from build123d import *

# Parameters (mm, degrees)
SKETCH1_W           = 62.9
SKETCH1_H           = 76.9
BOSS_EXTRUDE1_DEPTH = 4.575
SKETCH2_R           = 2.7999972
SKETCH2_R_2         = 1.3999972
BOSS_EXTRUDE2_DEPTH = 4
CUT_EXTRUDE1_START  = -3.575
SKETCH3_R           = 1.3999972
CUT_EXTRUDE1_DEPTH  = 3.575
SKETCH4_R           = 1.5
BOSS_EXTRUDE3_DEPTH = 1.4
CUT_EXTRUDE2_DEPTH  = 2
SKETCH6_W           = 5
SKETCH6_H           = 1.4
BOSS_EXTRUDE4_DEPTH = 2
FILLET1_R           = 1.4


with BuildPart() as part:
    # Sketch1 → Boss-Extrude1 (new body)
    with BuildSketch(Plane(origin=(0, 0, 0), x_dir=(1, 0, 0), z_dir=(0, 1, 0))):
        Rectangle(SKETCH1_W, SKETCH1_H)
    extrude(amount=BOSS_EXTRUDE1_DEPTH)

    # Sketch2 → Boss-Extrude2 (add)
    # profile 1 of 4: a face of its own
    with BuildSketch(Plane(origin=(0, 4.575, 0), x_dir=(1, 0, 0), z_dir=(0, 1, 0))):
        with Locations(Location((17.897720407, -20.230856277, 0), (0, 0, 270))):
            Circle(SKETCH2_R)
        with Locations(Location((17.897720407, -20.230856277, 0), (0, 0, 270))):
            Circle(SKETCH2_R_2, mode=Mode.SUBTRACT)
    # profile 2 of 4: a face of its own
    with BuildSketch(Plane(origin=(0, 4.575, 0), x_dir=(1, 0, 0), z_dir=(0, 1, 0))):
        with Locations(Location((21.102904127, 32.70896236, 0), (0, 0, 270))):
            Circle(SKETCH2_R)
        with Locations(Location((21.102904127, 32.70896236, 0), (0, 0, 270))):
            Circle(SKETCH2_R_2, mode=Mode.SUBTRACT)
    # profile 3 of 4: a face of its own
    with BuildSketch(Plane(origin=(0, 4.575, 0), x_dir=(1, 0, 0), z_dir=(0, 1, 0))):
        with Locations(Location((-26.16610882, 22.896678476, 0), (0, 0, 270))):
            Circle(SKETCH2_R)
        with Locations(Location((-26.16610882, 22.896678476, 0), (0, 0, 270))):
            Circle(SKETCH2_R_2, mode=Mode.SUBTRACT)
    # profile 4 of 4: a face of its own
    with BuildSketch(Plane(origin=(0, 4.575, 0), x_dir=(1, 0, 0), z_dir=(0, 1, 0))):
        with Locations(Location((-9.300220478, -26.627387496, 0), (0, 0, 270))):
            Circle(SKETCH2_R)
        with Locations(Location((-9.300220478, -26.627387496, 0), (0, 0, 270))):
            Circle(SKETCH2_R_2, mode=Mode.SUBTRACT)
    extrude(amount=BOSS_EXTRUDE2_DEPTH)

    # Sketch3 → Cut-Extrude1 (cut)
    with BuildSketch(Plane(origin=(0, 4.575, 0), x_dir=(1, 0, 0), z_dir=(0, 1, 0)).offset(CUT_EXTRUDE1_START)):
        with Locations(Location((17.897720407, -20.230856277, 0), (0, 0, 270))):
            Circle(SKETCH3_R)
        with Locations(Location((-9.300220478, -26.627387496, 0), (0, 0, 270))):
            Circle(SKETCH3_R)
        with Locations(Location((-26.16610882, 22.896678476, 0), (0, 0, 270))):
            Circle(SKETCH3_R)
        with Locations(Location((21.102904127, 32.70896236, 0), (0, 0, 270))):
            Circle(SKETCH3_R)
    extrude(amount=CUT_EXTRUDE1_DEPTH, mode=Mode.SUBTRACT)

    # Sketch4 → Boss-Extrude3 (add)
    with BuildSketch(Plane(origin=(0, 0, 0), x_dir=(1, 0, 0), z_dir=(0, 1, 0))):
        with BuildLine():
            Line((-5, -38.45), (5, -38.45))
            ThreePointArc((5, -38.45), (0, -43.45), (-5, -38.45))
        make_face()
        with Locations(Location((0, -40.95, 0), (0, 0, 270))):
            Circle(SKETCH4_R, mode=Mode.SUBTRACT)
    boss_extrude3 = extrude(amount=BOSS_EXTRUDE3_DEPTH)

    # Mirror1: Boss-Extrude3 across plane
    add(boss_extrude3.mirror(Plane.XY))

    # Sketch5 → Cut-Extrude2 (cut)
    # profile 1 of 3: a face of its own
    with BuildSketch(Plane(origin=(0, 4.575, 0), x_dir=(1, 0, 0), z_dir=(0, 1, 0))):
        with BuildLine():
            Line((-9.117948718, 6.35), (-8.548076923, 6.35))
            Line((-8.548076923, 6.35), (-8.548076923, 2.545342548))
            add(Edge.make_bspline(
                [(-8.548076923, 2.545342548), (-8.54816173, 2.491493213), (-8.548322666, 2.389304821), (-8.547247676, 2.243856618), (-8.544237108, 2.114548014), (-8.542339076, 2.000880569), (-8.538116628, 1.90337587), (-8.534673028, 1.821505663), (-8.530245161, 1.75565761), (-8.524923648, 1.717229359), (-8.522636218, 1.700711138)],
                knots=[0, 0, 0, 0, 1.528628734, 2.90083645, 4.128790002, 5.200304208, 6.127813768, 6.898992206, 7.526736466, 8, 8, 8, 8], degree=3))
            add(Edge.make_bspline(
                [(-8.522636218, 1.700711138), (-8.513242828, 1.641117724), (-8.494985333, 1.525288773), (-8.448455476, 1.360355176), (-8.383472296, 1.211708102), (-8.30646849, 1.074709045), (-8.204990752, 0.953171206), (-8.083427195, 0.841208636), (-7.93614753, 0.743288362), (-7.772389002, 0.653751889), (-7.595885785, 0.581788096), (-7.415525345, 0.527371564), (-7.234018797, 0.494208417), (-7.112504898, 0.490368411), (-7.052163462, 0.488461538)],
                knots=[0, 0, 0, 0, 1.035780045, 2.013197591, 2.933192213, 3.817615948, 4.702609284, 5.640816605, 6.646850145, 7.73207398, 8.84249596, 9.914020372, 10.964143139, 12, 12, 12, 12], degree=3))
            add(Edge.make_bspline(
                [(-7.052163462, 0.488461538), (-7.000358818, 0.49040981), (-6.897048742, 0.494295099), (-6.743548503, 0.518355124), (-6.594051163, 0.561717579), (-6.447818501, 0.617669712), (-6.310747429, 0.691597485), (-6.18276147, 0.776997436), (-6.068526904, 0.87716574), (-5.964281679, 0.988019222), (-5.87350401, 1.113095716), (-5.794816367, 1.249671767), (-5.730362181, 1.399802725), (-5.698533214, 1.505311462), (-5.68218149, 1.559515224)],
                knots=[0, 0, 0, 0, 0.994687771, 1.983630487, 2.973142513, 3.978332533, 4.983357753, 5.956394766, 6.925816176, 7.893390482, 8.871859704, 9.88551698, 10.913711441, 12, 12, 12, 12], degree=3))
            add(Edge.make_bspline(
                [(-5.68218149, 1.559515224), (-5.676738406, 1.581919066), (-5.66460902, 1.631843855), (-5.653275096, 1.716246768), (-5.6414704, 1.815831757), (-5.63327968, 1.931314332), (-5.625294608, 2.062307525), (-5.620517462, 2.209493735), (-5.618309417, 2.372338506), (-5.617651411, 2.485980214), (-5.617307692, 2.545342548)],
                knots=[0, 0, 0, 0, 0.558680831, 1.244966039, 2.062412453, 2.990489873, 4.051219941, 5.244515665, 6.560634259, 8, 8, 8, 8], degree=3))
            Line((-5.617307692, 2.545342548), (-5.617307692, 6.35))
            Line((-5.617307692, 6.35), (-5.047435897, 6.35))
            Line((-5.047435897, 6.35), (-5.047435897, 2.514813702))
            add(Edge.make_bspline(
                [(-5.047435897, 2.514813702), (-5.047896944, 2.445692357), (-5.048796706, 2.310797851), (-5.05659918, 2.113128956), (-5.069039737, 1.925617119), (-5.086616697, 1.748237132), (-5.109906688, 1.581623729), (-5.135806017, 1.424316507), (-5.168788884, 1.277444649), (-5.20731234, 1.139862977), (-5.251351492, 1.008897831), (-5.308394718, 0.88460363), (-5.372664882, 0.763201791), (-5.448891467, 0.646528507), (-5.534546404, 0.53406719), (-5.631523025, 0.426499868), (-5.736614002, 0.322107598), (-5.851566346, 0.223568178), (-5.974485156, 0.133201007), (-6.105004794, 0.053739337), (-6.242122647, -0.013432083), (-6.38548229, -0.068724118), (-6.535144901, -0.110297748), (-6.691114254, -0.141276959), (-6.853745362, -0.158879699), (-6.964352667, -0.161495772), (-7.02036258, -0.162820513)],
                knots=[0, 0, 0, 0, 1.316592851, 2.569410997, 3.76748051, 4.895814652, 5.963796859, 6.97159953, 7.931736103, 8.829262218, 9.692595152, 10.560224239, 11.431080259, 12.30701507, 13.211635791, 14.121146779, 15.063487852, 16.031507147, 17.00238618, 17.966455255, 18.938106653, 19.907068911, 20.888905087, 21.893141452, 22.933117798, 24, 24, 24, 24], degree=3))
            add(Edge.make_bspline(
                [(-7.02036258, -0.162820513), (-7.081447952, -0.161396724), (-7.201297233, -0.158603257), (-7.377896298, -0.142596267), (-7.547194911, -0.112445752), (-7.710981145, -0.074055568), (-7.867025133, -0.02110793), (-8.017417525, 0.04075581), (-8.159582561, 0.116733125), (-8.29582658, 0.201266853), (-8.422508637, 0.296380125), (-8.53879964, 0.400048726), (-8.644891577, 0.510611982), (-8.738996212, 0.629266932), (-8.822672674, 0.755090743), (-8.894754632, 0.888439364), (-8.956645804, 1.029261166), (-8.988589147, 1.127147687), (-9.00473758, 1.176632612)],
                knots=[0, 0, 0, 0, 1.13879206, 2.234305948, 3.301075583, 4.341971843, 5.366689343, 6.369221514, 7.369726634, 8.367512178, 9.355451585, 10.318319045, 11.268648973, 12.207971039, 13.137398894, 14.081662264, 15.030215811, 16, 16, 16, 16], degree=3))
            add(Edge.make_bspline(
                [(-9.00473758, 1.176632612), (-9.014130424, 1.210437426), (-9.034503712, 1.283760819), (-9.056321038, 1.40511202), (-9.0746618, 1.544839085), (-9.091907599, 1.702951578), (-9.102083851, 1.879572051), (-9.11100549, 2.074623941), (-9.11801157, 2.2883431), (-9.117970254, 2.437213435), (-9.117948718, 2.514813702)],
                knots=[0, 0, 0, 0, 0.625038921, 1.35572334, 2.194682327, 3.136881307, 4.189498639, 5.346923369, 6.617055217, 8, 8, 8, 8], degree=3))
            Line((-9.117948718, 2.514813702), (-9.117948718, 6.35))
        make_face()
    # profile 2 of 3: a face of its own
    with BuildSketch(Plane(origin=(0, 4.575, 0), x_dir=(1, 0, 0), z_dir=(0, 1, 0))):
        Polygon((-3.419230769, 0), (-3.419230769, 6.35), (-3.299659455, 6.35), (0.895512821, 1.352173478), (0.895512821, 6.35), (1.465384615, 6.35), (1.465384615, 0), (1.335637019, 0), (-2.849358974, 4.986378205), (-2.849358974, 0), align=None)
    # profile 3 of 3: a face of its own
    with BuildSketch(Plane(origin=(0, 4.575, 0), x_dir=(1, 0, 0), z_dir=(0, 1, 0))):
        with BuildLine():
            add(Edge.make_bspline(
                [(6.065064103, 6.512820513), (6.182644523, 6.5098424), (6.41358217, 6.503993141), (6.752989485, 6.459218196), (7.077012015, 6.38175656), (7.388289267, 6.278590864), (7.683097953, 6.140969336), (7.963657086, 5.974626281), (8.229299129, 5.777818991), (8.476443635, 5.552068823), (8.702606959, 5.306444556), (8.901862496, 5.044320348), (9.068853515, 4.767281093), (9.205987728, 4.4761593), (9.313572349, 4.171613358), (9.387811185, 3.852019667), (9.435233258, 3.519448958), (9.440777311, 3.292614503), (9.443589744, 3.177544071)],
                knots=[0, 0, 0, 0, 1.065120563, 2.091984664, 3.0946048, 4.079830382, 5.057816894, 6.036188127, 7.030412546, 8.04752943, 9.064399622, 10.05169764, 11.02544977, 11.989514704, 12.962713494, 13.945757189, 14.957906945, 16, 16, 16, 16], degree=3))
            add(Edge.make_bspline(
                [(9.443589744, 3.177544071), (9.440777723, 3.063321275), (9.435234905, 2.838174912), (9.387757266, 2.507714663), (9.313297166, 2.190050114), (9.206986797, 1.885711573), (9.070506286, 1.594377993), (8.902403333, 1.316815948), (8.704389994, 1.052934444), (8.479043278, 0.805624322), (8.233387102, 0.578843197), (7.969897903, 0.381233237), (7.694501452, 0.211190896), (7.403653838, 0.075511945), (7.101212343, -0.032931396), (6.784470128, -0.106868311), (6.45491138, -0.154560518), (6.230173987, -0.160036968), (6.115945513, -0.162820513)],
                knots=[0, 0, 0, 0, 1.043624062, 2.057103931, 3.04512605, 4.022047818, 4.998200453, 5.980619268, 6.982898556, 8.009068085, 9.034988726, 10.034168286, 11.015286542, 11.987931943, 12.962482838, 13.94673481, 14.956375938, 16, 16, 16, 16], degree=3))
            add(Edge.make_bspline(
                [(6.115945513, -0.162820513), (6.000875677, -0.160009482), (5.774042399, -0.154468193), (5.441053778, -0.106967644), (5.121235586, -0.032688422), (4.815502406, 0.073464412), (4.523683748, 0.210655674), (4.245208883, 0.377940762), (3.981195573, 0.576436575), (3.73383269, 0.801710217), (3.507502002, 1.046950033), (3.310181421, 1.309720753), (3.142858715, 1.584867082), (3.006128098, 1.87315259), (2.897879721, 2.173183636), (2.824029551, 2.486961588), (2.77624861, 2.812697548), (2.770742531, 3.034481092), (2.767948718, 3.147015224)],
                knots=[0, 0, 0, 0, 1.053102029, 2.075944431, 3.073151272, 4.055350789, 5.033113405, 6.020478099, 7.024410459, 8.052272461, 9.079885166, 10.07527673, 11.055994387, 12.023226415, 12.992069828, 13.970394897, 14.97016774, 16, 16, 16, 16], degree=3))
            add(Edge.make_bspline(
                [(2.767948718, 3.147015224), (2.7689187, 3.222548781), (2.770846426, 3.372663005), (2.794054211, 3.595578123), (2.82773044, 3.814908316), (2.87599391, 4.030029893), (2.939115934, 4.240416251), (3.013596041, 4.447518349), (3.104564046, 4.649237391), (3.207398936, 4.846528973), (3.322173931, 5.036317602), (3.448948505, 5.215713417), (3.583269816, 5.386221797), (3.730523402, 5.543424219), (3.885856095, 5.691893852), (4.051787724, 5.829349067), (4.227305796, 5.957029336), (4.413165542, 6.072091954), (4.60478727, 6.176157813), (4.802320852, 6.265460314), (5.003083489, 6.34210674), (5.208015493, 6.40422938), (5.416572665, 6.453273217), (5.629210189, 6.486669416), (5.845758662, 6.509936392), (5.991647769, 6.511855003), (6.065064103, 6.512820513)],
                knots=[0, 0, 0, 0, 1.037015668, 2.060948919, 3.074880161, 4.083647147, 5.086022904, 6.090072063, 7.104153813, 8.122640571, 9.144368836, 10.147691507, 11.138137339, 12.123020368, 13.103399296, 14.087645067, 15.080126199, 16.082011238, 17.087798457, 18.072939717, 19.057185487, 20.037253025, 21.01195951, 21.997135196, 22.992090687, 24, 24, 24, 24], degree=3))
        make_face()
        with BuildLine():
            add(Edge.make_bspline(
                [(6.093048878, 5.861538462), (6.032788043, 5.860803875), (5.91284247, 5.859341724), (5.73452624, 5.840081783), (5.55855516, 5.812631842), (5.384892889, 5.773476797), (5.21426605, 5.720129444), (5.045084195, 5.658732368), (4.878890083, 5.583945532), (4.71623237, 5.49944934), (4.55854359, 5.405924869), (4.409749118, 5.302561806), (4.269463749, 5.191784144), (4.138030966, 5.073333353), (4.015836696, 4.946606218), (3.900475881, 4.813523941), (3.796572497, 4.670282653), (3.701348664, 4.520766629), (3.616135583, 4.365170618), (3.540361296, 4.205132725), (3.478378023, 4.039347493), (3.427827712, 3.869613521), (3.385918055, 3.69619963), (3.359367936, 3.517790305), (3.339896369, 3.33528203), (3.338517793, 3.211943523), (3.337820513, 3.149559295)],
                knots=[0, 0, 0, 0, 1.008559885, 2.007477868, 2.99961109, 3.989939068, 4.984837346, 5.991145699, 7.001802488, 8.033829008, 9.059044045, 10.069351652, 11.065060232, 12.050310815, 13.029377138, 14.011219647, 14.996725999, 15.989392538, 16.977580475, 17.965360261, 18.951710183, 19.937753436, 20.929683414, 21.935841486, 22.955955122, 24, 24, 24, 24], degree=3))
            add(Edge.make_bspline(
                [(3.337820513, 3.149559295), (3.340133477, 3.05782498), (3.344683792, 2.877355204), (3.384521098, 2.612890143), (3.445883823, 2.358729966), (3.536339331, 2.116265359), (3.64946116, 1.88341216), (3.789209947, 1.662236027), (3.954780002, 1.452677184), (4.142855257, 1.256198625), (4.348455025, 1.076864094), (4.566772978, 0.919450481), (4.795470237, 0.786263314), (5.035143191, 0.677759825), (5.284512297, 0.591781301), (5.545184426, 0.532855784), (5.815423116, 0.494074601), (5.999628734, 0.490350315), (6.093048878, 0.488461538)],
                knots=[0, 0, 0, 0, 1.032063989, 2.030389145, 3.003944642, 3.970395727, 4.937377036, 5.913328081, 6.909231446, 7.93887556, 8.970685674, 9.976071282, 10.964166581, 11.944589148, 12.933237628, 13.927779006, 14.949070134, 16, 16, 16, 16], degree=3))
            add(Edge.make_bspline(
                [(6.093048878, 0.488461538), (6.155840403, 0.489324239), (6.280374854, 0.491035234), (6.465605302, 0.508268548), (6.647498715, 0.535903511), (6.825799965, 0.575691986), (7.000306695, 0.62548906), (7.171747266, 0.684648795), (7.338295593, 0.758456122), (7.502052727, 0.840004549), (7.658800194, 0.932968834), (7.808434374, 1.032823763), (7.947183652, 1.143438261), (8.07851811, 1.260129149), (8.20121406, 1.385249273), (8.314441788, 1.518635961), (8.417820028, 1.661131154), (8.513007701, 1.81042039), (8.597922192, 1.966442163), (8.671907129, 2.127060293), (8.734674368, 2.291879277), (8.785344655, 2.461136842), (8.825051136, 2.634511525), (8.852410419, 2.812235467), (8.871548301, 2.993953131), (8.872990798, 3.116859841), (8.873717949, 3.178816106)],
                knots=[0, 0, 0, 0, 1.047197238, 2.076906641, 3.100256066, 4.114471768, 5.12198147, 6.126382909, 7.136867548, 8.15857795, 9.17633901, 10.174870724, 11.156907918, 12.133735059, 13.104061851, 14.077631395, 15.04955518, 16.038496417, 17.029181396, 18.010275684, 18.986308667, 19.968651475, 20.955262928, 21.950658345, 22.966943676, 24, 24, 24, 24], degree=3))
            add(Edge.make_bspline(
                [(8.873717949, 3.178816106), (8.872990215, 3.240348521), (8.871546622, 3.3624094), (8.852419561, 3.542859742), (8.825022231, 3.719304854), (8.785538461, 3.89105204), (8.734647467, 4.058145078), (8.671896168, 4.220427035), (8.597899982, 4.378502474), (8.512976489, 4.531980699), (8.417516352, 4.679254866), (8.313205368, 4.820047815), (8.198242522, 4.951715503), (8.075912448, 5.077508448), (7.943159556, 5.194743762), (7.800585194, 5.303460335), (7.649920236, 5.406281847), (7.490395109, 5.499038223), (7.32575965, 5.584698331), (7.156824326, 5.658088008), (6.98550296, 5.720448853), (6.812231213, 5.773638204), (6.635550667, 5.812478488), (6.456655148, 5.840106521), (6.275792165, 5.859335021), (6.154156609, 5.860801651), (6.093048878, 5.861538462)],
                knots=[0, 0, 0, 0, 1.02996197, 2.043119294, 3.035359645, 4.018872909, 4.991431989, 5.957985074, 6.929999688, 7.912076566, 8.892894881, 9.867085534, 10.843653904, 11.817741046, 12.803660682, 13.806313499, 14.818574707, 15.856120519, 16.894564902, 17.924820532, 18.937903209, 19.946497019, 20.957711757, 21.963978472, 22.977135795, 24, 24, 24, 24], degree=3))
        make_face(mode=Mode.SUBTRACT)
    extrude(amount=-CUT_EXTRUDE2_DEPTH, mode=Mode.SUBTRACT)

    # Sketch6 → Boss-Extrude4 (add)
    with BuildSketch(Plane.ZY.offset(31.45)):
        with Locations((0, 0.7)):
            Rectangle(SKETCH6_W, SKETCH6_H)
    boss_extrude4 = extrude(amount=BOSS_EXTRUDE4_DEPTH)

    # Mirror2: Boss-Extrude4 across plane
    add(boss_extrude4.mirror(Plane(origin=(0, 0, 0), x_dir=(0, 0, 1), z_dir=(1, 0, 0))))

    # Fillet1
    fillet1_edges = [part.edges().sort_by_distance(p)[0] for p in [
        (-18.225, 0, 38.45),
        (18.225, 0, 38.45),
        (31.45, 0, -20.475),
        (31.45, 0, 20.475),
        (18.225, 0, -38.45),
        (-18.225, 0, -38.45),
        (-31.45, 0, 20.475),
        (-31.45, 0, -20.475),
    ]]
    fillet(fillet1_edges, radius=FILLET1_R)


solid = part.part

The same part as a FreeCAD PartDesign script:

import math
import FreeCAD as App
import Part
import Sketcher

V = App.Vector
Q = App.Units.Quantity


def edges_at(feature, points):
    """Names of the edges that pass closest to the given points."""
    edges = feature.Shape.Edges
    near = lambda p: min(range(len(edges)), key=lambda i: edges[i].distToShape(Part.Vertex(*p))[0])
    return sorted({f"Edge{near(p) + 1}" for p in points})

doc = App.newDocument("Part")
body = doc.addObject("PartDesign::Body", "Body")

# Sketch on XZ plane
sketch1 = body.newObject("Sketcher::SketchObject", "Sketch")
sketch1.AttachmentSupport = (doc.getObject("XZ_Plane"), [""])
sketch1.MapMode = "FlatFace"
sketch1.addGeometry([
    Part.LineSegment(V(-31, -38, 0), V(-31, 38, 0)),
    Part.LineSegment(V(-31, 38, 0), V(31, 38, 0)),
    Part.LineSegment(V(31, 38, 0), V(31, -38, 0)),
    Part.LineSegment(V(31, -38, 0), V(-31, -38, 0)),
], False)
sketch1.addConstraint([
    Sketcher.Constraint("Coincident", 0, 2, 1, 1),
    Sketcher.Constraint("Coincident", 1, 2, 2, 1),
    Sketcher.Constraint("Coincident", 2, 2, 3, 1),
    Sketcher.Constraint("Coincident", 3, 2, 0, 1),
    Sketcher.Constraint("Vertical", 0),
    Sketcher.Constraint("Horizontal", 1),
    Sketcher.Constraint("Vertical", 2),
    Sketcher.Constraint("Horizontal", 3),
    Sketcher.Constraint("Symmetric", 0, 2, 2, 2, -1, 1),
    Sketcher.Constraint("DistanceX", 1, 1, 1, 2, Q("62.9 mm")),
    Sketcher.Constraint("DistanceY", 0, 1, 0, 2, Q("76.9 mm")),
])
pad1 = body.newObject("PartDesign::Pad", "Pad")
pad1.Profile = sketch1
pad1.Length = 4.575
pad1.Reversed = True

# Sketch on XZ plane
sketch2 = body.newObject("Sketcher::SketchObject", "Sketch001")
sketch2.AttachmentSupport = (doc.getObject("XZ_Plane"), [""])
sketch2.MapMode = "FlatFace"
sketch2.AttachmentOffset = App.Placement(V(0, 0, -4.575), App.Rotation())
sketch2.addGeometry([
    Part.Circle(V(17.9, 20.2, 0), V(0, 0, 1), 2.8),  # 0
    Part.Circle(V(17.9, 20.2, 0), V(0, 0, 1), 1.4),  # 1
    Part.Circle(V(21.1, -32.7, 0), V(0, 0, 1), 2.8),  # 2
    Part.Circle(V(21.1, -32.7, 0), V(0, 0, 1), 1.4),  # 3
    Part.Circle(V(-26.2, -22.9, 0), V(0, 0, 1), 2.8),  # 4
    Part.Circle(V(-26.2, -22.9, 0), V(0, 0, 1), 1.4),  # 5
    Part.Circle(V(-9.3, 26.6, 0), V(0, 0, 1), 2.8),  # 6
    Part.Circle(V(-9.3, 26.6, 0), V(0, 0, 1), 1.4),  # 7
], False)
sketch2.addConstraint([
    Sketcher.Constraint("Coincident", 1, 3, 0, 3),
    Sketcher.Constraint("Coincident", 3, 3, 2, 3),
    Sketcher.Constraint("Coincident", 5, 3, 4, 3),
    Sketcher.Constraint("Coincident", 7, 3, 6, 3),
    Sketcher.Constraint("Equal", 0, 2),
    Sketcher.Constraint("Equal", 1, 3),
    Sketcher.Constraint("Equal", 2, 4),
    Sketcher.Constraint("Equal", 3, 5),
    Sketcher.Constraint("Equal", 4, 6),
    Sketcher.Constraint("Equal", 5, 7),
    Sketcher.Constraint("Diameter", 0, Q("5.599994 mm")),
    Sketcher.Constraint("Diameter", 1, Q("2.799994 mm")),
    Sketcher.Constraint("DistanceX", -1, 1, 0, 3, Q("17.89772 mm")),
    Sketcher.Constraint("DistanceX", 4, 3, -1, 1, Q("26.166109 mm")),
    Sketcher.Constraint("DistanceY", 4, 3, -1, 1, Q("22.896678 mm")),
    Sketcher.Constraint("DistanceX", 6, 3, -1, 1, Q("9.30022 mm")),
    Sketcher.Constraint("DistanceY", 2, 3, 0, 3, Q("52.939819 mm")),
    Sketcher.Constraint("DistanceY", 0, 3, 6, 3, Q("6.396531 mm")),
    Sketcher.Constraint("DistanceY", -1, 1, 0, 3, Q("20.230856 mm")),
    Sketcher.Constraint("DistanceX", -1, 1, 2, 3, Q("21.102904 mm")),
])
pad2 = body.newObject("PartDesign::Pad", "Pad001")
pad2.Profile = sketch2
pad2.Length = 4
pad2.Reversed = True

# Sketch on XZ plane
sketch3 = body.newObject("Sketcher::SketchObject", "Sketch002")
sketch3.AttachmentSupport = (doc.getObject("XZ_Plane"), [""])
sketch3.MapMode = "FlatFace"
sketch3.AttachmentOffset = App.Placement(V(0, 0, -1), App.Rotation())
sketch3.addGeometry([
    Part.Circle(V(17.9, 20.2, 0), V(0, 0, 1), 1.4),
    Part.Circle(V(-9.3, 26.6, 0), V(0, 0, 1), 1.4),
    Part.Circle(V(-26.2, -22.9, 0), V(0, 0, 1), 1.4),
    Part.Circle(V(21.1, -32.7, 0), V(0, 0, 1), 1.4),
], False)
sketch3.addConstraint([
    Sketcher.Constraint("Equal", 0, 1),
    Sketcher.Constraint("Equal", 1, 2),
    Sketcher.Constraint("Equal", 2, 3),
    Sketcher.Constraint("Diameter", 0, Q("2.799994 mm")),
    Sketcher.Constraint("DistanceX", -1, 1, 0, 3, Q("17.89772 mm")),
    Sketcher.Constraint("DistanceX", 1, 3, -1, 1, Q("9.30022 mm")),
    Sketcher.Constraint("DistanceX", 2, 3, -1, 1, Q("26.166109 mm")),
    Sketcher.Constraint("DistanceY", 2, 3, -1, 1, Q("22.896678 mm")),
    Sketcher.Constraint("DistanceY", 0, 3, 1, 3, Q("6.396531 mm")),
    Sketcher.Constraint("DistanceY", 3, 3, 0, 3, Q("52.939819 mm")),
    Sketcher.Constraint("DistanceY", -1, 1, 0, 3, Q("20.230856 mm")),
    Sketcher.Constraint("DistanceX", -1, 1, 3, 3, Q("21.102904 mm")),
])
pocket1 = body.newObject("PartDesign::Pocket", "Pocket")
pocket1.Profile = sketch3
pocket1.Length = 3.575

# Sketch on XZ plane
sketch4 = body.newObject("Sketcher::SketchObject", "Sketch003")
sketch4.AttachmentSupport = (doc.getObject("XZ_Plane"), [""])
sketch4.MapMode = "FlatFace"
sketch4.addGeometry([
    Part.LineSegment(V(5, 38.5, 0), V(-5, 38.5, 0)),
    Part.ArcOfCircle(Part.Circle(V(0, 38.5, 0), V(0, 0, 1), 5), math.radians(0), math.radians(180)),
    Part.Circle(V(0, 41, 0), V(0, 0, 1), 1.5),
], False)
sketch4.addConstraint([
    Sketcher.Constraint("Coincident", 0, 1, 1, 1),
    Sketcher.Constraint("Coincident", 1, 2, 0, 2),
    Sketcher.Constraint("Horizontal", 0),
    Sketcher.Constraint("PointOnObject", 1, 3, -2),
    Sketcher.Constraint("PointOnObject", 2, 3, -2),
    Sketcher.Constraint("Horizontal", 1, 3, 0, 1),
    Sketcher.Constraint("Diameter", 2, Q("3 mm")),
    Sketcher.Constraint("Radius", 1, Q("5 mm")),
    Sketcher.Constraint("DistanceY", 1, 3, 2, 3, Q("2.5 mm")),
    Sketcher.Constraint("DistanceY", -1, 1, 1, 3, Q("38.45 mm")),
])
pad3 = body.newObject("PartDesign::Pad", "Pad002")
pad3.Profile = sketch4
pad3.Length = 1.4
pad3.Reversed = True
doc.recompute()

mirrored = body.newObject("PartDesign::Mirrored", "Mirrored")
mirrored.Originals = [pad3]
mirrored.MirrorPlane = (doc.getObject("XY_Plane"), [""])
body.Tip = mirrored

# Sketch on XZ plane
sketch5 = body.newObject("Sketcher::SketchObject", "Sketch004")
sketch5.AttachmentSupport = (doc.getObject("XZ_Plane"), [""])
sketch5.MapMode = "FlatFace"
sketch5.AttachmentOffset = App.Placement(V(0, 0, -4.575), App.Rotation())
sketch5.addGeometry([
    Part.LineSegment(V(-8.548077, -6.35, 0), V(-9.117949, -6.35, 0)),  # 0
    Part.LineSegment(V(-9.117949, -6.35, 0), V(-9.117949, -2.514814, 0)),  # 1
    Part.BSplineCurve([V(-9.004738, -1.176633, 0), V(-9.01413, -1.210437, 0), V(-9.034504, -1.283761, 0), V(-9.056321, -1.405112, 0), V(-9.074662, -1.544839, 0), V(-9.091908, -1.702952, 0), V(-9.102084, -1.879572, 0), V(-9.111005, -2.074624, 0), V(-9.118012, -2.288343, 0), V(-9.11797, -2.437213, 0), V(-9.117949, -2.514814, 0)], [4, 1, 1, 1, 1, 1, 1, 1, 4], [0, 0.625038921, 1.35572334, 2.194682327, 3.136881307, 4.189498639, 5.346923369, 6.617055217, 8], False, 3, [1, 1, 1, 1, 1, 1, 1, 1, 1, 1, 1], False),  # 2
    Part.BSplineCurve([V(-7.020363, 0.162821, 0), V(-7.081448, 0.161397, 0), V(-7.201297, 0.158603, 0), V(-7.377896, 0.142596, 0), V(-7.547195, 0.112446, 0), V(-7.710981, 0.074056, 0), V(-7.867025, 0.021108, 0), V(-8.017418, -0.040756, 0), V(-8.159583, -0.116733, 0), V(-8.295827, -0.201267, 0), V(-8.422509, -0.29638, 0), V(-8.5388, -0.400049, 0), V(-8.644892, -0.510612, 0), V(-8.738996, -0.629267, 0), V(-8.822673, -0.755091, 0), V(-8.894755, -0.888439, 0), V(-8.956646, -1.029261, 0), V(-8.988589, -1.127148, 0), V(-9.004738, -1.176633, 0)], [4, 1, 1, 1, 1, 1, 1, 1, 1, 1, 1, 1, 1, 1, 1, 1, 4], [0, 1.13879206, 2.234305948, 3.301075583, 4.341971843, 5.366689343, 6.369221514, 7.369726634, 8.367512178, 9.355451585, 10.318319045, 11.268648973, 12.207971039, 13.137398894, 14.081662264, 15.030215811, 16], False, 3, [1, 1, 1, 1, 1, 1, 1, 1, 1, 1, 1, 1, 1, 1, 1, 1, 1, 1, 1], False),  # 3
    Part.BSplineCurve([V(-5.047436, -2.514814, 0), V(-5.047897, -2.445692, 0), V(-5.048797, -2.310798, 0), V(-5.056599, -2.113129, 0), V(-5.06904, -1.925617, 0), V(-5.086617, -1.748237, 0), V(-5.109907, -1.581624, 0), V(-5.135806, -1.424317, 0), V(-5.168789, -1.277445, 0), V(-5.207312, -1.139863, 0), V(-5.251351, -1.008898, 0), V(-5.308395, -0.884604, 0), V(-5.372665, -0.763202, 0), V(-5.448891, -0.646529, 0), V(-5.534546, -0.534067, 0), V(-5.631523, -0.4265, 0), V(-5.736614, -0.322108, 0), V(-5.851566, -0.223568, 0), V(-5.974485, -0.133201, 0), V(-6.105005, -0.053739, 0), V(-6.242123, 0.013432, 0), V(-6.385482, 0.068724, 0), V(-6.535145, 0.110298, 0), V(-6.691114, 0.141277, 0), V(-6.853745, 0.15888, 0), V(-6.964353, 0.161496, 0), V(-7.020363, 0.162821, 0)], [4, 1, 1, 1, 1, 1, 1, 1, 1, 1, 1, 1, 1, 1, 1, 1, 1, 1, 1, 1, 1, 1, 1, 1, 4], [0, 1.316592851, 2.569410997, 3.76748051, 4.895814652, 5.963796859, 6.97159953, 7.931736103, 8.829262218, 9.692595152, 10.560224239, 11.431080259, 12.30701507, 13.211635791, 14.121146779, 15.063487852, 16.031507147, 17.00238618, 17.966455255, 18.938106653, 19.907068911, 20.888905087, 21.893141452, 22.933117798, 24], False, 3, [1, 1, 1, 1, 1, 1, 1, 1, 1, 1, 1, 1, 1, 1, 1, 1, 1, 1, 1, 1, 1, 1, 1, 1, 1, 1, 1], False),  # 4
    Part.LineSegment(V(-5.047436, -2.514814, 0), V(-5.047436, -6.35, 0)),  # 5
    Part.LineSegment(V(-5.047436, -6.35, 0), V(-5.617308, -6.35, 0)),  # 6
    Part.LineSegment(V(-5.617308, -6.35, 0), V(-5.617308, -2.545343, 0)),  # 7
    Part.BSplineCurve([V(-5.682181, -1.559515, 0), V(-5.676738, -1.581919, 0), V(-5.664609, -1.631844, 0), V(-5.653275, -1.716247, 0), V(-5.64147, -1.815832, 0), V(-5.63328, -1.931314, 0), V(-5.625295, -2.062308, 0), V(-5.620517, -2.209494, 0), V(-5.618309, -2.372339, 0), V(-5.617651, -2.48598, 0), V(-5.617308, -2.545343, 0)], [4, 1, 1, 1, 1, 1, 1, 1, 4], [0, 0.558680831, 1.244966039, 2.062412453, 2.990489873, 4.051219941, 5.244515665, 6.560634259, 8], False, 3, [1, 1, 1, 1, 1, 1, 1, 1, 1, 1, 1], False),  # 8
    Part.BSplineCurve([V(-7.052163, -0.488462, 0), V(-7.000359, -0.49041, 0), V(-6.897049, -0.494295, 0), V(-6.743549, -0.518355, 0), V(-6.594051, -0.561718, 0), V(-6.447819, -0.61767, 0), V(-6.310747, -0.691597, 0), V(-6.182761, -0.776997, 0), V(-6.068527, -0.877166, 0), V(-5.964282, -0.988019, 0), V(-5.873504, -1.113096, 0), V(-5.794816, -1.249672, 0), V(-5.730362, -1.399803, 0), V(-5.698533, -1.505311, 0), V(-5.682181, -1.559515, 0)], [4, 1, 1, 1, 1, 1, 1, 1, 1, 1, 1, 1, 4], [0, 0.994687771, 1.983630487, 2.973142513, 3.978332533, 4.983357753, 5.956394766, 6.925816176, 7.893390482, 8.871859704, 9.88551698, 10.913711441, 12], False, 3, [1, 1, 1, 1, 1, 1, 1, 1, 1, 1, 1, 1, 1, 1, 1], False),  # 9
    Part.BSplineCurve([V(-8.522636, -1.700711, 0), V(-8.513243, -1.641118, 0), V(-8.494985, -1.525289, 0), V(-8.448455, -1.360355, 0), V(-8.383472, -1.211708, 0), V(-8.306468, -1.074709, 0), V(-8.204991, -0.953171, 0), V(-8.083427, -0.841209, 0), V(-7.936148, -0.743288, 0), V(-7.772389, -0.653752, 0), V(-7.595886, -0.581788, 0), V(-7.415525, -0.527372, 0), V(-7.234019, -0.494208, 0), V(-7.112505, -0.490368, 0), V(-7.052163, -0.488462, 0)], [4, 1, 1, 1, 1, 1, 1, 1, 1, 1, 1, 1, 4], [0, 1.035780045, 2.013197591, 2.933192213, 3.817615948, 4.702609284, 5.640816605, 6.646850145, 7.73207398, 8.84249596, 9.914020372, 10.964143139, 12], False, 3, [1, 1, 1, 1, 1, 1, 1, 1, 1, 1, 1, 1, 1, 1, 1], False),  # 10
    Part.BSplineCurve([V(-8.548077, -2.545343, 0), V(-8.548162, -2.491493, 0), V(-8.548323, -2.389305, 0), V(-8.547248, -2.243857, 0), V(-8.544237, -2.114548, 0), V(-8.542339, -2.000881, 0), V(-8.538117, -1.903376, 0), V(-8.534673, -1.821506, 0), V(-8.530245, -1.755658, 0), V(-8.524924, -1.717229, 0), V(-8.522636, -1.700711, 0)], [4, 1, 1, 1, 1, 1, 1, 1, 4], [0, 1.528628734, 2.90083645, 4.128790002, 5.200304208, 6.127813768, 6.898992206, 7.526736466, 8], False, 3, [1, 1, 1, 1, 1, 1, 1, 1, 1, 1, 1], False),  # 11
    Part.LineSegment(V(-8.548077, -2.545343, 0), V(-8.548077, -6.35, 0)),  # 12
    Part.LineSegment(V(-3.419231, -6.35, 0), V(-3.419231, 0, 0)),  # 13
    Part.LineSegment(V(-3.419231, 0, 0), V(-2.849359, 0, 0)),  # 14
    Part.LineSegment(V(-2.849359, 0, 0), V(-2.849359, -4.986378, 0)),  # 15
    Part.LineSegment(V(-2.849359, -4.986378, 0), V(1.335637, 0, 0)),  # 16
    Part.LineSegment(V(1.335637, 0, 0), V(1.465385, 0, 0)),  # 17
    Part.LineSegment(V(1.465385, 0, 0), V(1.465385, -6.35, 0)),  # 18
    Part.LineSegment(V(1.465385, -6.35, 0), V(0.895513, -6.35, 0)),  # 19
    Part.LineSegment(V(0.895513, -6.35, 0), V(0.895513, -1.352173, 0)),  # 20
    Part.LineSegment(V(0.895513, -1.352173, 0), V(-3.299659, -6.35, 0)),  # 21
    Part.LineSegment(V(-3.299659, -6.35, 0), V(-3.419231, -6.35, 0)),  # 22
    Part.BSplineCurve([V(6.065064, -6.512821, 0), V(6.182645, -6.509842, 0), V(6.413582, -6.503993, 0), V(6.752989, -6.459218, 0), V(7.077012, -6.381757, 0), V(7.388289, -6.278591, 0), V(7.683098, -6.140969, 0), V(7.963657, -5.974626, 0), V(8.229299, -5.777819, 0), V(8.476444, -5.552069, 0), V(8.702607, -5.306445, 0), V(8.901862, -5.04432, 0), V(9.068854, -4.767281, 0), V(9.205988, -4.476159, 0), V(9.313572, -4.171613, 0), V(9.387811, -3.85202, 0), V(9.435233, -3.519449, 0), V(9.440777, -3.292615, 0), V(9.44359, -3.177544, 0)], [4, 1, 1, 1, 1, 1, 1, 1, 1, 1, 1, 1, 1, 1, 1, 1, 4], [0, 1.065120563, 2.091984664, 3.0946048, 4.079830382, 5.057816894, 6.036188127, 7.030412546, 8.04752943, 9.064399622, 10.05169764, 11.02544977, 11.989514704, 12.962713494, 13.945757189, 14.957906945, 16], False, 3, [1, 1, 1, 1, 1, 1, 1, 1, 1, 1, 1, 1, 1, 1, 1, 1, 1, 1, 1], False),  # 23
    Part.BSplineCurve([V(2.767949, -3.147015, 0), V(2.768919, -3.222549, 0), V(2.770846, -3.372663, 0), V(2.794054, -3.595578, 0), V(2.82773, -3.814908, 0), V(2.875994, -4.03003, 0), V(2.939116, -4.240416, 0), V(3.013596, -4.447518, 0), V(3.104564, -4.649237, 0), V(3.207399, -4.846529, 0), V(3.322174, -5.036318, 0), V(3.448949, -5.215713, 0), V(3.58327, -5.386222, 0), V(3.730523, -5.543424, 0), V(3.885856, -5.691894, 0), V(4.051788, -5.829349, 0), V(4.227306, -5.957029, 0), V(4.413166, -6.072092, 0), V(4.604787, -6.176158, 0), V(4.802321, -6.26546, 0), V(5.003083, -6.342107, 0), V(5.208015, -6.404229, 0), V(5.416573, -6.453273, 0), V(5.62921, -6.486669, 0), V(5.845759, -6.509936, 0), V(5.991648, -6.511855, 0), V(6.065064, -6.512821, 0)], [4, 1, 1, 1, 1, 1, 1, 1, 1, 1, 1, 1, 1, 1, 1, 1, 1, 1, 1, 1, 1, 1, 1, 1, 4], [0, 1.037015668, 2.060948919, 3.074880161, 4.083647147, 5.086022904, 6.090072063, 7.104153813, 8.122640571, 9.144368836, 10.147691507, 11.138137339, 12.123020368, 13.103399296, 14.087645067, 15.080126199, 16.082011238, 17.087798457, 18.072939717, 19.057185487, 20.037253025, 21.01195951, 21.997135196, 22.992090687, 24], False, 3, [1, 1, 1, 1, 1, 1, 1, 1, 1, 1, 1, 1, 1, 1, 1, 1, 1, 1, 1, 1, 1, 1, 1, 1, 1, 1, 1], False),  # 24
    Part.BSplineCurve([V(6.115946, 0.162821, 0), V(6.000876, 0.160009, 0), V(5.774042, 0.154468, 0), V(5.441054, 0.106968, 0), V(5.121236, 0.032688, 0), V(4.815502, -0.073464, 0), V(4.523684, -0.210656, 0), V(4.245209, -0.377941, 0), V(3.981196, -0.576437, 0), V(3.733833, -0.80171, 0), V(3.507502, -1.04695, 0), V(3.310181, -1.309721, 0), V(3.142859, -1.584867, 0), V(3.006128, -1.873153, 0), V(2.89788, -2.173184, 0), V(2.82403, -2.486962, 0), V(2.776249, -2.812698, 0), V(2.770743, -3.034481, 0), V(2.767949, -3.147015, 0)], [4, 1, 1, 1, 1, 1, 1, 1, 1, 1, 1, 1, 1, 1, 1, 1, 4], [0, 1.053102029, 2.075944431, 3.073151272, 4.055350789, 5.033113405, 6.020478099, 7.024410459, 8.052272461, 9.079885166, 10.07527673, 11.055994387, 12.023226415, 12.992069828, 13.970394897, 14.97016774, 16], False, 3, [1, 1, 1, 1, 1, 1, 1, 1, 1, 1, 1, 1, 1, 1, 1, 1, 1, 1, 1], False),  # 25
    Part.BSplineCurve([V(9.44359, -3.177544, 0), V(9.440778, -3.063321, 0), V(9.435235, -2.838175, 0), V(9.387757, -2.507715, 0), V(9.313297, -2.19005, 0), V(9.206987, -1.885712, 0), V(9.070506, -1.594378, 0), V(8.902403, -1.316816, 0), V(8.70439, -1.052934, 0), V(8.479043, -0.805624, 0), V(8.233387, -0.578843, 0), V(7.969898, -0.381233, 0), V(7.694501, -0.211191, 0), V(7.403654, -0.075512, 0), V(7.101212, 0.032931, 0), V(6.78447, 0.106868, 0), V(6.454911, 0.154561, 0), V(6.230174, 0.160037, 0), V(6.115946, 0.162821, 0)], [4, 1, 1, 1, 1, 1, 1, 1, 1, 1, 1, 1, 1, 1, 1, 1, 4], [0, 1.043624062, 2.057103931, 3.04512605, 4.022047818, 4.998200453, 5.980619268, 6.982898556, 8.009068085, 9.034988726, 10.034168286, 11.015286542, 11.987931943, 12.962482838, 13.94673481, 14.956375938, 16], False, 3, [1, 1, 1, 1, 1, 1, 1, 1, 1, 1, 1, 1, 1, 1, 1, 1, 1, 1, 1], False),  # 26
    Part.BSplineCurve([V(8.873718, -3.178816, 0), V(8.87299, -3.240349, 0), V(8.871547, -3.362409, 0), V(8.85242, -3.54286, 0), V(8.825022, -3.719305, 0), V(8.785538, -3.891052, 0), V(8.734647, -4.058145, 0), V(8.671896, -4.220427, 0), V(8.5979, -4.378502, 0), V(8.512976, -4.531981, 0), V(8.417516, -4.679255, 0), V(8.313205, -4.820048, 0), V(8.198243, -4.951716, 0), V(8.075912, -5.077508, 0), V(7.94316, -5.194744, 0), V(7.800585, -5.30346, 0), V(7.64992, -5.406282, 0), V(7.490395, -5.499038, 0), V(7.32576, -5.584698, 0), V(7.156824, -5.658088, 0), V(6.985503, -5.720449, 0), V(6.812231, -5.773638, 0), V(6.635551, -5.812478, 0), V(6.456655, -5.840107, 0), V(6.275792, -5.859335, 0), V(6.154157, -5.860802, 0), V(6.093049, -5.861538, 0)], [4, 1, 1, 1, 1, 1, 1, 1, 1, 1, 1, 1, 1, 1, 1, 1, 1, 1, 1, 1, 1, 1, 1, 1, 4], [0, 1.02996197, 2.043119294, 3.035359645, 4.018872909, 4.991431989, 5.957985074, 6.929999688, 7.912076566, 8.892894881, 9.867085534, 10.843653904, 11.817741046, 12.803660682, 13.806313499, 14.818574707, 15.856120519, 16.894564902, 17.924820532, 18.937903209, 19.946497019, 20.957711757, 21.963978472, 22.977135795, 24], False, 3, [1, 1, 1, 1, 1, 1, 1, 1, 1, 1, 1, 1, 1, 1, 1, 1, 1, 1, 1, 1, 1, 1, 1, 1, 1, 1, 1], False),  # 27
    Part.BSplineCurve([V(6.093049, -0.488462, 0), V(6.15584, -0.489324, 0), V(6.280375, -0.491035, 0), V(6.465605, -0.508269, 0), V(6.647499, -0.535904, 0), V(6.8258, -0.575692, 0), V(7.000307, -0.625489, 0), V(7.171747, -0.684649, 0), V(7.338296, -0.758456, 0), V(7.502053, -0.840005, 0), V(7.6588, -0.932969, 0), V(7.808434, -1.032824, 0), V(7.947184, -1.143438, 0), V(8.078518, -1.260129, 0), V(8.201214, -1.385249, 0), V(8.314442, -1.518636, 0), V(8.41782, -1.661131, 0), V(8.513008, -1.81042, 0), V(8.597922, -1.966442, 0), V(8.671907, -2.12706, 0), V(8.734674, -2.291879, 0), V(8.785345, -2.461137, 0), V(8.825051, -2.634512, 0), V(8.85241, -2.812235, 0), V(8.871548, -2.993953, 0), V(8.872991, -3.11686, 0), V(8.873718, -3.178816, 0)], [4, 1, 1, 1, 1, 1, 1, 1, 1, 1, 1, 1, 1, 1, 1, 1, 1, 1, 1, 1, 1, 1, 1, 1, 4], [0, 1.047197238, 2.076906641, 3.100256066, 4.114471768, 5.12198147, 6.126382909, 7.136867548, 8.15857795, 9.17633901, 10.174870724, 11.156907918, 12.133735059, 13.104061851, 14.077631395, 15.04955518, 16.038496417, 17.029181396, 18.010275684, 18.986308667, 19.968651475, 20.955262928, 21.950658345, 22.966943676, 24], False, 3, [1, 1, 1, 1, 1, 1, 1, 1, 1, 1, 1, 1, 1, 1, 1, 1, 1, 1, 1, 1, 1, 1, 1, 1, 1, 1, 1], False),  # 28
    Part.BSplineCurve([V(3.337821, -3.149559, 0), V(3.340133, -3.057825, 0), V(3.344684, -2.877355, 0), V(3.384521, -2.61289, 0), V(3.445884, -2.35873, 0), V(3.536339, -2.116265, 0), V(3.649461, -1.883412, 0), V(3.78921, -1.662236, 0), V(3.95478, -1.452677, 0), V(4.142855, -1.256199, 0), V(4.348455, -1.076864, 0), V(4.566773, -0.91945, 0), V(4.79547, -0.786263, 0), V(5.035143, -0.67776, 0), V(5.284512, -0.591781, 0), V(5.545184, -0.532856, 0), V(5.815423, -0.494075, 0), V(5.999629, -0.49035, 0), V(6.093049, -0.488462, 0)], [4, 1, 1, 1, 1, 1, 1, 1, 1, 1, 1, 1, 1, 1, 1, 1, 4], [0, 1.032063989, 2.030389145, 3.003944642, 3.970395727, 4.937377036, 5.913328081, 6.909231446, 7.93887556, 8.970685674, 9.976071282, 10.964166581, 11.944589148, 12.933237628, 13.927779006, 14.949070134, 16], False, 3, [1, 1, 1, 1, 1, 1, 1, 1, 1, 1, 1, 1, 1, 1, 1, 1, 1, 1, 1], False),  # 29
    Part.BSplineCurve([V(6.093049, -5.861538, 0), V(6.032788, -5.860804, 0), V(5.912842, -5.859342, 0), V(5.734526, -5.840082, 0), V(5.558555, -5.812632, 0), V(5.384893, -5.773477, 0), V(5.214266, -5.720129, 0), V(5.045084, -5.658732, 0), V(4.87889, -5.583946, 0), V(4.716232, -5.499449, 0), V(4.558544, -5.405925, 0), V(4.409749, -5.302562, 0), V(4.269464, -5.191784, 0), V(4.138031, -5.073333, 0), V(4.015837, -4.946606, 0), V(3.900476, -4.813524, 0), V(3.796572, -4.670283, 0), V(3.701349, -4.520767, 0), V(3.616136, -4.365171, 0), V(3.540361, -4.205133, 0), V(3.478378, -4.039347, 0), V(3.427828, -3.869614, 0), V(3.385918, -3.6962, 0), V(3.359368, -3.51779, 0), V(3.339896, -3.335282, 0), V(3.338518, -3.211944, 0), V(3.337821, -3.149559, 0)], [4, 1, 1, 1, 1, 1, 1, 1, 1, 1, 1, 1, 1, 1, 1, 1, 1, 1, 1, 1, 1, 1, 1, 1, 4], [0, 1.008559885, 2.007477868, 2.99961109, 3.989939068, 4.984837346, 5.991145699, 7.001802488, 8.033829008, 9.059044045, 10.069351652, 11.065060232, 12.050310815, 13.029377138, 14.011219647, 14.996725999, 15.989392538, 16.977580475, 17.965360261, 18.951710183, 19.937753436, 20.929683414, 21.935841486, 22.955955122, 24], False, 3, [1, 1, 1, 1, 1, 1, 1, 1, 1, 1, 1, 1, 1, 1, 1, 1, 1, 1, 1, 1, 1, 1, 1, 1, 1, 1, 1], False),  # 30
], False)
sketch5.addConstraint([
    Sketcher.Constraint("Block", 2),
    Sketcher.Constraint("Block", 3),
    Sketcher.Constraint("Block", 4),
    Sketcher.Constraint("Block", 8),
    Sketcher.Constraint("Block", 9),
    Sketcher.Constraint("Block", 10),
    Sketcher.Constraint("Block", 11),
    Sketcher.Constraint("Block", 23),
    Sketcher.Constraint("Block", 24),
    Sketcher.Constraint("Block", 25),
    Sketcher.Constraint("Block", 26),
    Sketcher.Constraint("Block", 27),
    Sketcher.Constraint("Block", 28),
    Sketcher.Constraint("Block", 29),
    Sketcher.Constraint("Block", 30),
    Sketcher.Constraint("Coincident", 0, 2, 1, 1),
    Sketcher.Constraint("Coincident", 1, 2, 2, 2),
    Sketcher.Constraint("Coincident", 4, 1, 5, 1),
    Sketcher.Constraint("Coincident", 5, 2, 6, 1),
    Sketcher.Constraint("Coincident", 6, 2, 7, 1),
    Sketcher.Constraint("Coincident", 7, 2, 8, 2),
    Sketcher.Constraint("Coincident", 11, 1, 12, 1),
    Sketcher.Constraint("Coincident", 12, 2, 0, 1),
    Sketcher.Constraint("Coincident", 13, 2, 14, 1),
    Sketcher.Constraint("Coincident", 14, 2, 15, 1),
    Sketcher.Constraint("Coincident", 15, 2, 16, 1),
    Sketcher.Constraint("Coincident", 16, 2, 17, 1),
    Sketcher.Constraint("Coincident", 17, 2, 18, 1),
    Sketcher.Constraint("Coincident", 18, 2, 19, 1),
    Sketcher.Constraint("Coincident", 19, 2, 20, 1),
    Sketcher.Constraint("Coincident", 20, 2, 21, 1),
    Sketcher.Constraint("Coincident", 21, 2, 22, 1),
    Sketcher.Constraint("Coincident", 22, 2, 13, 1),
    Sketcher.Constraint("Horizontal", 0),
    Sketcher.Constraint("Vertical", 1),
    Sketcher.Constraint("Vertical", 5),
    Sketcher.Constraint("Horizontal", 6),
    Sketcher.Constraint("Vertical", 7),
    Sketcher.Constraint("Vertical", 12),
    Sketcher.Constraint("Vertical", 13),
    Sketcher.Constraint("Horizontal", 14),
    Sketcher.Constraint("Vertical", 15),
    Sketcher.Constraint("Horizontal", 17),
    Sketcher.Constraint("Vertical", 18),
    Sketcher.Constraint("Horizontal", 19),
    Sketcher.Constraint("Vertical", 20),
    Sketcher.Constraint("Horizontal", 22),
    Sketcher.Constraint("PointOnObject", 13, 2, -1),
    Sketcher.Constraint("PointOnObject", 16, 2, -1),
    Sketcher.Constraint("Horizontal", 0, 2, 5, 2),
    Sketcher.Constraint("Horizontal", 12, 2, 18, 2),
    Sketcher.Constraint("Horizontal", 19, 2, 21, 2),
    Sketcher.Constraint("Equal", 6, 14),
    Sketcher.Constraint("Equal", 14, 19),
    Sketcher.Constraint("DistanceY", 13, 1, 13, 2, Q("6.35 mm")),
    Sketcher.Constraint("DistanceX", 22, 2, 22, 1, Q("0.119571 mm")),
    Sketcher.Constraint("DistanceY", 15, 2, 15, 1, Q("4.986378 mm")),
    Sketcher.Constraint("Distance", 16, Q("6.509851 mm")),
    Sketcher.Constraint("DistanceX", 17, 1, 17, 2, Q("0.129748 mm")),
    Sketcher.Constraint("DistanceY", 20, 1, 20, 2, Q("4.997827 mm")),
    Sketcher.Constraint("DistanceX", 13, 2, -1, 1, Q("3.419231 mm")),
])
pocket2 = body.newObject("PartDesign::Pocket", "Pocket001")
pocket2.Profile = sketch5
pocket2.Length = 2
pocket2.Reversed = True

# Sketch on YZ plane
sketch6 = body.newObject("Sketcher::SketchObject", "Sketch005")
sketch6.AttachmentSupport = (doc.getObject("YZ_Plane"), [""])
sketch6.MapMode = "FlatFace"
sketch6.AttachmentOffset = App.Placement(V(0, 0, -31.45), App.Rotation())
sketch6.addGeometry([
    Part.LineSegment(V(1.4, -2.5, 0), V(0, -2.5, 0)),
    Part.LineSegment(V(0, -2.5, 0), V(0, 2.5, 0)),
    Part.LineSegment(V(0, 2.5, 0), V(1.4, 2.5, 0)),
    Part.LineSegment(V(1.4, 2.5, 0), V(1.4, -2.5, 0)),
], False)
sketch6.addConstraint([
    Sketcher.Constraint("Coincident", 0, 2, 1, 1),
    Sketcher.Constraint("Coincident", 1, 2, 2, 1),
    Sketcher.Constraint("Coincident", 2, 2, 3, 1),
    Sketcher.Constraint("Coincident", 3, 2, 0, 1),
    Sketcher.Constraint("Horizontal", 0),
    Sketcher.Constraint("Vertical", 1),
    Sketcher.Constraint("Horizontal", 2),
    Sketcher.Constraint("Vertical", 3),
    Sketcher.Constraint("Symmetric", 0, 2, 1, 2, -1, 1),
    Sketcher.Constraint("DistanceY", 1, 1, 1, 2, Q("5 mm")),
    Sketcher.Constraint("DistanceX", 0, 2, 0, 1, Q("1.4 mm")),
])
pad4 = body.newObject("PartDesign::Pad", "Pad003")
pad4.Profile = sketch6
pad4.Length = 2
pad4.Reversed = True
doc.recompute()

mirrored2 = body.newObject("PartDesign::Mirrored", "Mirrored001")
mirrored2.Originals = [pad4]
mirrored2.MirrorPlane = (doc.getObject("YZ_Plane"), [""])
body.Tip = mirrored2
doc.recompute()

fillet = body.newObject("PartDesign::Fillet", "Fillet")
fillet.Base = (mirrored2, edges_at(mirrored2, [
    (-18.225, 0, 38.45),
    (18.225, 0, 38.45),
    (31.45, 0, -20.475),
    (31.45, 0, 20.475),
    (18.225, 0, -38.45),
    (-18.225, 0, -38.45),
    (-31.45, 0, 20.475),
    (-31.45, 0, -20.475),
]))
fillet.Radius = 1.4

doc.recompute()
